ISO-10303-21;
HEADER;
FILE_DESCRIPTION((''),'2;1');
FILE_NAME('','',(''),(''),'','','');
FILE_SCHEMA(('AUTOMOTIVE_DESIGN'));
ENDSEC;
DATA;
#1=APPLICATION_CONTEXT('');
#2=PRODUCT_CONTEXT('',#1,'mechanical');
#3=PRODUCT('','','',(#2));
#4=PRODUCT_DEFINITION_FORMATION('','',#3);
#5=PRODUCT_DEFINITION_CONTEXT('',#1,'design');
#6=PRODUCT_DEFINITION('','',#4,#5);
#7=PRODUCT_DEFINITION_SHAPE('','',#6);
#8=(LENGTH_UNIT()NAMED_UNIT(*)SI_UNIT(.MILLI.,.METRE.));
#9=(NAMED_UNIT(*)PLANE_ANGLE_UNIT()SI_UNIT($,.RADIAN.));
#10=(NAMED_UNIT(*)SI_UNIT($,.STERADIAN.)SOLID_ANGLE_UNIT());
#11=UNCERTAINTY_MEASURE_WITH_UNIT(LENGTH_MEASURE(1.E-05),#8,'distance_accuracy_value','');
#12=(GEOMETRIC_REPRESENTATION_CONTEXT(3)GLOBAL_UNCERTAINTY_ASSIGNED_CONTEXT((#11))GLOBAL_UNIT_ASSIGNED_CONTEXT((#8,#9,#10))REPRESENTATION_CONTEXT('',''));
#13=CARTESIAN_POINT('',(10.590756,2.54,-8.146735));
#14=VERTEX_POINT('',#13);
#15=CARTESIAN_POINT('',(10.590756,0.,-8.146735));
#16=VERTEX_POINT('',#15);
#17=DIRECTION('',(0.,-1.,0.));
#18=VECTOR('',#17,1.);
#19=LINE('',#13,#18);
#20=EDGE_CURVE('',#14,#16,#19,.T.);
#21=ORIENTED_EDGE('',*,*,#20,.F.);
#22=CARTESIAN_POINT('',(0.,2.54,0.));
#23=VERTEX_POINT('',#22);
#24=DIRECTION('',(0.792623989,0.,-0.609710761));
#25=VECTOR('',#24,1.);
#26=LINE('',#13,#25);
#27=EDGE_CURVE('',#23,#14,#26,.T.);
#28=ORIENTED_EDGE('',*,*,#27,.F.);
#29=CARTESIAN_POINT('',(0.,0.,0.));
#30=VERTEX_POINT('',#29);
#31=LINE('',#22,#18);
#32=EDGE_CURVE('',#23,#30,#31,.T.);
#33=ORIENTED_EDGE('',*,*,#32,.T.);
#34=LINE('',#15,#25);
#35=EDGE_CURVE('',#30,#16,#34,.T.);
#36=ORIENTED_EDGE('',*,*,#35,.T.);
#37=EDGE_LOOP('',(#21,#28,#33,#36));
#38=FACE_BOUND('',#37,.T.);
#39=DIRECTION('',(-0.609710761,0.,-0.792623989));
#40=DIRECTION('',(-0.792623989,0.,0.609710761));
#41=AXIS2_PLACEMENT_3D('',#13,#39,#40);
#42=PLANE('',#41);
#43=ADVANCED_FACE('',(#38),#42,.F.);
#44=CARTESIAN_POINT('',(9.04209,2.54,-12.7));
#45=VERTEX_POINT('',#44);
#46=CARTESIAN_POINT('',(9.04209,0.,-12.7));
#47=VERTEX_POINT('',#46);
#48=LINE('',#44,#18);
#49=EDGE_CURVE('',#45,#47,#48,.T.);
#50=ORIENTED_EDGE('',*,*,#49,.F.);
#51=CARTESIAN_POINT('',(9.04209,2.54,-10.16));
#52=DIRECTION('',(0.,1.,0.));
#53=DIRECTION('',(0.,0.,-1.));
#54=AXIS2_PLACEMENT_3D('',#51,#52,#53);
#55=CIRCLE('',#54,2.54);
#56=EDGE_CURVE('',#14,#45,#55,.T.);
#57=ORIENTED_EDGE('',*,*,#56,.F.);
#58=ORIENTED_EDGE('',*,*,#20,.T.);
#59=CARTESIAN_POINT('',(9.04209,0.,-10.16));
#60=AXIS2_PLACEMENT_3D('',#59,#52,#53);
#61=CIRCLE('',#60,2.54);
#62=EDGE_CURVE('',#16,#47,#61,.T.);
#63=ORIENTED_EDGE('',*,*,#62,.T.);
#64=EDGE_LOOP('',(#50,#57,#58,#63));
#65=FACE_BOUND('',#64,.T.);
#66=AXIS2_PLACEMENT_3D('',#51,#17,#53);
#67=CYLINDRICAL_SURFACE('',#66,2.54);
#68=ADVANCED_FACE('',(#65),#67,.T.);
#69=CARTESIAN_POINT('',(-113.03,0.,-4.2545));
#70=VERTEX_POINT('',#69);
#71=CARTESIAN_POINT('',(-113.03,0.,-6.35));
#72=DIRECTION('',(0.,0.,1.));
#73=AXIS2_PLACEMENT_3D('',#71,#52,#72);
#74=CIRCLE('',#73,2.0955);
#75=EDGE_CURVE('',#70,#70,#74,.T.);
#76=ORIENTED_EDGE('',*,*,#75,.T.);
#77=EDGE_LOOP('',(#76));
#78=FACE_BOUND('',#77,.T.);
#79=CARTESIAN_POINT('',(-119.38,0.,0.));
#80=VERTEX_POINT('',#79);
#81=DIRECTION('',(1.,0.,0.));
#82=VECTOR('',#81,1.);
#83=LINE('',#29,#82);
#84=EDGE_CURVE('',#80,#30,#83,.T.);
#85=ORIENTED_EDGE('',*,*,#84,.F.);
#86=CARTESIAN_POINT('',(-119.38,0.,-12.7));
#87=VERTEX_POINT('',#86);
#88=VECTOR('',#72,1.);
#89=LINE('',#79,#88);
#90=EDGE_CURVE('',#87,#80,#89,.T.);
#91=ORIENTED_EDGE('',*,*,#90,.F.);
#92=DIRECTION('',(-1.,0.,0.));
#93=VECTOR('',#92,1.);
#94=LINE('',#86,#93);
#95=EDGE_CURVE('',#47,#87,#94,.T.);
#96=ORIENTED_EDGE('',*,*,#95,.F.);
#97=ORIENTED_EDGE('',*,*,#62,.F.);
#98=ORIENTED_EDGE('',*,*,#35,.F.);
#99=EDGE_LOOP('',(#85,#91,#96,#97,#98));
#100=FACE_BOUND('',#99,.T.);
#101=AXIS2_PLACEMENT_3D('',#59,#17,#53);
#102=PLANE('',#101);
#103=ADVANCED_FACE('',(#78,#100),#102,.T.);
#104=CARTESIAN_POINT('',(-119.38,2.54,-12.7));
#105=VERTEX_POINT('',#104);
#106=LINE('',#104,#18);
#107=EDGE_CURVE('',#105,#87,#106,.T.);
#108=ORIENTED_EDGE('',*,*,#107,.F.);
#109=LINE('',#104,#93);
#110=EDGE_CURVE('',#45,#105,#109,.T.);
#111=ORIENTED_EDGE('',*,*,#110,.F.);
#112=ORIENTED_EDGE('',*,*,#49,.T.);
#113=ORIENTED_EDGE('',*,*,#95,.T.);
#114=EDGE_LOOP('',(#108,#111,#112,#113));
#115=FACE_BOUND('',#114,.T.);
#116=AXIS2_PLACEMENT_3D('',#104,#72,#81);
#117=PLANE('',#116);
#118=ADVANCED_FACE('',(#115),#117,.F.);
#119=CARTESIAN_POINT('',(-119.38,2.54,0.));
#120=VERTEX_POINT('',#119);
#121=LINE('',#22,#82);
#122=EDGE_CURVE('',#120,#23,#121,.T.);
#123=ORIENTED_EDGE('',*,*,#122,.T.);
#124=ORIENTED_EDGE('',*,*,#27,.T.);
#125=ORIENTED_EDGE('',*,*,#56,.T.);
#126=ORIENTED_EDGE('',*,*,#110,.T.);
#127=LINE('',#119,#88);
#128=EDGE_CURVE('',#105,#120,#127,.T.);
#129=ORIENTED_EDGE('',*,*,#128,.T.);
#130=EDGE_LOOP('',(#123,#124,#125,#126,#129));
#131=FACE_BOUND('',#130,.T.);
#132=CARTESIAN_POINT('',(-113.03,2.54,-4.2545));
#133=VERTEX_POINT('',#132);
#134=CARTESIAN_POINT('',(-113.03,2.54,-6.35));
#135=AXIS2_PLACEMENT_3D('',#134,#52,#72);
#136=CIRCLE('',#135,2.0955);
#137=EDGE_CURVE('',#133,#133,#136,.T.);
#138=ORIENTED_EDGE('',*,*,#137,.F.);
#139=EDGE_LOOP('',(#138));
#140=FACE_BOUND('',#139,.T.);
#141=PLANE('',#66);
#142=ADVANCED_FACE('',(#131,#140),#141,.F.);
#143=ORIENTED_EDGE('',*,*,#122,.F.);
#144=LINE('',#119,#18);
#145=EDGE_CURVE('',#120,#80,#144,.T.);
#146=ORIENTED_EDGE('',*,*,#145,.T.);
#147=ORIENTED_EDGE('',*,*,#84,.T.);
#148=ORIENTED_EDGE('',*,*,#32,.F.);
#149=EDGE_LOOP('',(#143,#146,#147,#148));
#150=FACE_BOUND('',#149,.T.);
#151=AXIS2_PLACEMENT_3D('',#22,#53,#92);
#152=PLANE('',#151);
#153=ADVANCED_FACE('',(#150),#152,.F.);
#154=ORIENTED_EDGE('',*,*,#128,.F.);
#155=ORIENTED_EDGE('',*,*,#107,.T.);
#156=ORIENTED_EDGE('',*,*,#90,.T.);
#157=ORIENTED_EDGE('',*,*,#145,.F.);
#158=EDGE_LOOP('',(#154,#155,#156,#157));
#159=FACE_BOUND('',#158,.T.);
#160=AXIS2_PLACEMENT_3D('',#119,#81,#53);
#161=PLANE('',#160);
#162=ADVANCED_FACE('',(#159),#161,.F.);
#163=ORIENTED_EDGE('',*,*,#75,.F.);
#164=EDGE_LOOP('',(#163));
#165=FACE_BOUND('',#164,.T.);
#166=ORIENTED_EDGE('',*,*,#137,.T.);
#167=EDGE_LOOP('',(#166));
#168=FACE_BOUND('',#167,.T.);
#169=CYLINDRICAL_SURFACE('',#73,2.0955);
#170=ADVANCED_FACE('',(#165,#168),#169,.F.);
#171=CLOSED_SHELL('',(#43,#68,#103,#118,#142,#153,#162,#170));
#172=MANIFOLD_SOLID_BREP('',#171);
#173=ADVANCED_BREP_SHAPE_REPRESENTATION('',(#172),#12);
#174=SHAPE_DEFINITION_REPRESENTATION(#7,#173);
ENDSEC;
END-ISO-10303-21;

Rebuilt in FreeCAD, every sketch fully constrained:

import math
import FreeCAD as App
import Part
import Sketcher
Q = App.Units.Quantity

doc = App.newDocument("Part")
body = doc.addObject("PartDesign::Body", "Body")

# Sketch on XZ plane
sketch1 = body.newObject("Sketcher::SketchObject", "Sketch")
sketch1.AttachmentSupport = (doc.getObject("XZ_Plane"), [""])
sketch1.MapMode = "FlatFace"
sketch1.addGeometry(Part.LineSegment(App.Vector(-119.38, 0, 0), App.Vector(0, 0, 0)), False)
sketch1.addGeometry(Part.LineSegment(App.Vector(0, 0, 0), App.Vector(10.590756, -8.146735, 0)), False)
sketch1.addGeometry(Part.ArcOfCircle(Part.Circle(App.Vector(9.04209, -10.16, 0), App.Vector(0, 0, 1), 2.54), math.radians(-90), math.radians(52.431408)), False)
sketch1.addGeometry(Part.LineSegment(App.Vector(9.04209, -12.7, 0), App.Vector(-119.38, -12.7, 0)), False)
sketch1.addGeometry(Part.LineSegment(App.Vector(-119.38, -12.7, 0), App.Vector(-119.38, 0, 0)), False)
sketch1.addConstraint(Sketcher.Constraint("Coincident", 0, 2, 1, 1))
sketch1.addConstraint(Sketcher.Constraint("Tangent", 1, 2, 2, 2))
sketch1.addConstraint(Sketcher.Constraint("Tangent", 2, 1, 3, 1))
sketch1.addConstraint(Sketcher.Constraint("Coincident", 3, 2, 4, 1))
sketch1.addConstraint(Sketcher.Constraint("Coincident", 4, 2, 0, 1))
sketch1.addConstraint(Sketcher.Constraint("Horizontal", 0))
sketch1.addConstraint(Sketcher.Constraint("Horizontal", 3))
sketch1.addConstraint(Sketcher.Constraint("Vertical", 4))
sketch1.addConstraint(Sketcher.Constraint("Coincident", 0, 2, -1, 1))
sketch1.addConstraint(Sketcher.Constraint("Radius", 2, Q("0.1 in")))
sketch1.addConstraint(Sketcher.Constraint("DistanceX", 0, 1, 0, 2, Q("4.7 in")))
sketch1.addConstraint(Sketcher.Constraint("DistanceY", 4, 1, 4, 2, Q("0.5 in")))
sketch1.addConstraint(Sketcher.Constraint("DistanceX", 3, 2, 3, 1, 128.42209))
pad1 = body.newObject("PartDesign::Pad", "Pad")
pad1.Profile = sketch1
pad1.Length = Q("0.1 in")
pad1.Reversed = True

# Sketch on XZ plane
sketch2 = body.newObject("Sketcher::SketchObject", "Sketch001")
sketch2.AttachmentSupport = (doc.getObject("XZ_Plane"), [""])
sketch2.MapMode = "FlatFace"
sketch2.AttachmentOffset = App.Placement(App.Vector(0, 0, -0.1 * 25.4), App.Rotation())
sketch2.addGeometry(Part.Circle(App.Vector(-113.03, -6.35, 0), App.Vector(0, 0, 1), 2.0955), False)
sketch2.addConstraint(Sketcher.Constraint("Diameter", 0, Q("0.165 in")))
sketch2.addConstraint(Sketcher.Constraint("DistanceX", 0, 3, -1, 1, Q("4.45 in")))
sketch2.addConstraint(Sketcher.Constraint("DistanceY", 0, 3, -1, 1, Q("0.25 in")))
pocket1 = body.newObject("PartDesign::Pocket", "Pocket")
pocket1.Profile = sketch2
pocket1.Type = "ThroughAll"
pocket1.Reversed = True

doc.recompute()
